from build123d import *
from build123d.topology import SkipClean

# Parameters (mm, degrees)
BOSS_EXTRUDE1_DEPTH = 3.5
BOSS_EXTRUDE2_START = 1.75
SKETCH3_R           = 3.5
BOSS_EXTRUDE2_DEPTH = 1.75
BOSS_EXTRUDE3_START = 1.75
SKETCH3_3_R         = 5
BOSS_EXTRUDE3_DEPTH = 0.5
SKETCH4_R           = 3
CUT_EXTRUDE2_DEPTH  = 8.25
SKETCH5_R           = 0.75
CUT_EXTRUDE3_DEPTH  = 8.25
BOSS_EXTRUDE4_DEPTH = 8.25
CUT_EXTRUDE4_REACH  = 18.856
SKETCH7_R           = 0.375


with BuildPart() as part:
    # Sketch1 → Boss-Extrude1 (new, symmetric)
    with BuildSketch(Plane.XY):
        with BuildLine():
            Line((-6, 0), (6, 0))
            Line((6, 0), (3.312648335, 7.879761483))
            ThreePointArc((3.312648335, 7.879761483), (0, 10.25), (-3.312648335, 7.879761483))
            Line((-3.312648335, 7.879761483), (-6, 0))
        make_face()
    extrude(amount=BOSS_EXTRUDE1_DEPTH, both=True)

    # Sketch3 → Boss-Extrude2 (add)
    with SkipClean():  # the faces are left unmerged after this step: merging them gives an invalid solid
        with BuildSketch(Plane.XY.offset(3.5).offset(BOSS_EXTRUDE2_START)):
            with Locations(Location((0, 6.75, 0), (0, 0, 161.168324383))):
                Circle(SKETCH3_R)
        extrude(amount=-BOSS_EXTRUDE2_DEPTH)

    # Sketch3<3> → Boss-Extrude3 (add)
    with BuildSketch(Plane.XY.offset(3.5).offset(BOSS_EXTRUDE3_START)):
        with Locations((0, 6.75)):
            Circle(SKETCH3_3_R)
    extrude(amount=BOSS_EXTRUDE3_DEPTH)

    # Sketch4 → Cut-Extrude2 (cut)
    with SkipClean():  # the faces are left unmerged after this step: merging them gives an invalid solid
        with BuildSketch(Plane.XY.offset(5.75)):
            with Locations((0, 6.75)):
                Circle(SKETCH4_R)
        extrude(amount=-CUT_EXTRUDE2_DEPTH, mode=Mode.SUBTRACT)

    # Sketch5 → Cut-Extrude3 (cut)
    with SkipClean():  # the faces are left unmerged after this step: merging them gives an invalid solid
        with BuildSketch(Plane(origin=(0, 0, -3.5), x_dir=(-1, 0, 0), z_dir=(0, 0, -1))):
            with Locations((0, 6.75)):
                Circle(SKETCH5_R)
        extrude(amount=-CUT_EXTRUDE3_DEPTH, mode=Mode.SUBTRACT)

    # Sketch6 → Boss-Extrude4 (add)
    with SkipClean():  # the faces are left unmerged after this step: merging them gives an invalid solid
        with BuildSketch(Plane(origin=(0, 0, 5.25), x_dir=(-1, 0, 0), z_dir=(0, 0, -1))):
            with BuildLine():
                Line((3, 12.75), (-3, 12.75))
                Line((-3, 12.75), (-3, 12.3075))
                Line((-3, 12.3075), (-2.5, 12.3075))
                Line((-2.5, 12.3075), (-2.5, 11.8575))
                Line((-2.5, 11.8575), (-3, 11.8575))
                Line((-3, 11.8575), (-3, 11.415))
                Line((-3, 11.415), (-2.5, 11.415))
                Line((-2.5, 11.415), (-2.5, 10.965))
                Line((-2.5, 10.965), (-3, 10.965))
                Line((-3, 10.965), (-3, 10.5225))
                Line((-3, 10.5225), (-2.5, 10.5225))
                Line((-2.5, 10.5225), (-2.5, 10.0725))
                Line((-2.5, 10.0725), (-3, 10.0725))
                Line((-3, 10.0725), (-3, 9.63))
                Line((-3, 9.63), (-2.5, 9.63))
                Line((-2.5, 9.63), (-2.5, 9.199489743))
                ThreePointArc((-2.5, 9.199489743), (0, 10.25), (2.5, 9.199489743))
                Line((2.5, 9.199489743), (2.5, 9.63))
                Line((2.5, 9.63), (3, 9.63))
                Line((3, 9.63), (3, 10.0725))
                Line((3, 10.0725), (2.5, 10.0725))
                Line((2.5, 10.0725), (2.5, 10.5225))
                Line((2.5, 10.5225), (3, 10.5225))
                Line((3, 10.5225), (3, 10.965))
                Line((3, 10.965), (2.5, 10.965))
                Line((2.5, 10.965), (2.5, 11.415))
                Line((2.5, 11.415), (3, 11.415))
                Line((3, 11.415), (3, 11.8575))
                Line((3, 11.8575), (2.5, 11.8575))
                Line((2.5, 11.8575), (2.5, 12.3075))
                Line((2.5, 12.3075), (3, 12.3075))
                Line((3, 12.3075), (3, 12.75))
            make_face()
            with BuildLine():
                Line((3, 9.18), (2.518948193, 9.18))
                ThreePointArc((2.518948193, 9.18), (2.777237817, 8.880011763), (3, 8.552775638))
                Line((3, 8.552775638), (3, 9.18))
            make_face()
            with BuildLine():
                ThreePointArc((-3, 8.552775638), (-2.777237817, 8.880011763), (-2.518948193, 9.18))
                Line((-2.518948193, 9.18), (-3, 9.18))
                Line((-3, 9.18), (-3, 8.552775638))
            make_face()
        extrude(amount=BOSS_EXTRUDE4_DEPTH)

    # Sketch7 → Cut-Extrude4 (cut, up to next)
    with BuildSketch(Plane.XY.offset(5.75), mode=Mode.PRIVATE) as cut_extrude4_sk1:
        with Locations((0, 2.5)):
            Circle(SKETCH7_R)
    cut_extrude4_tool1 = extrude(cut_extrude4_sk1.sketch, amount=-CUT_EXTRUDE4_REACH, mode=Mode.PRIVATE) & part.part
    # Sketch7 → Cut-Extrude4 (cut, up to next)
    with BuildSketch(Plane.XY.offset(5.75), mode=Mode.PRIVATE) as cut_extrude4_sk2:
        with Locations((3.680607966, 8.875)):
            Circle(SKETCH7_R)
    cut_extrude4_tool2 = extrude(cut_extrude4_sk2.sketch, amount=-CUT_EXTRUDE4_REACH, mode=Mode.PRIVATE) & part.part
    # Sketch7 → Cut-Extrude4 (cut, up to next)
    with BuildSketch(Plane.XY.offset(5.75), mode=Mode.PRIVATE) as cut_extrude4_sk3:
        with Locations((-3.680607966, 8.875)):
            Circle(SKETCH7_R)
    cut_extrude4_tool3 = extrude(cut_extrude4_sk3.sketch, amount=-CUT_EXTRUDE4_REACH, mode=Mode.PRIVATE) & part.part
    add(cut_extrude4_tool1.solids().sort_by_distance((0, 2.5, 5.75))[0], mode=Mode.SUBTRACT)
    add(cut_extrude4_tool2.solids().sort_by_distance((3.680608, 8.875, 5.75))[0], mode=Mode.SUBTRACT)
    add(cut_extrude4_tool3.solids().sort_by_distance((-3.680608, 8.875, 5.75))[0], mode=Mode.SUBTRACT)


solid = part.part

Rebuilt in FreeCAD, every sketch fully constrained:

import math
import FreeCAD as App
import Part
import Sketcher

doc = App.newDocument("Part")
body = doc.addObject("PartDesign::Body", "Body")

# Sketch on XY plane
sketch1 = body.newObject("Sketcher::SketchObject", "Sketch")
sketch1.AttachmentSupport = (doc.getObject("XY_Plane"), [""])
sketch1.MapMode = "FlatFace"
sketch1.addGeometry([
    Part.LineSegment(App.Vector(-6, 0, 0), App.Vector(6, 0, 0)),
    Part.LineSegment(App.Vector(6, 0, 0), App.Vector(3.3, 7.9, 0)),
    Part.ArcOfCircle(Part.Circle(App.Vector(0, 6.8, 0), App.Vector(0, 0, 1), 3.5), math.radians(19), math.radians(161)),
    Part.LineSegment(App.Vector(-3.3, 7.9, 0), App.Vector(-6, 0, 0)),
], False)
sketch1.addConstraint([
    Sketcher.Constraint("Coincident", 0, 2, 1, 1),
    Sketcher.Constraint("Tangent", 1, 2, 2, 1),
    Sketcher.Constraint("Tangent", 2, 2, 3, 1),
    Sketcher.Constraint("Coincident", 3, 2, 0, 1),
    Sketcher.Constraint("Horizontal", 0),
    Sketcher.Constraint("Symmetric", 0, 2, 3, 2, -1, 1),
    Sketcher.Constraint("PointOnObject", 2, 3, -2),
    Sketcher.Constraint("Radius", 2, 3.5),
    Sketcher.Constraint("DistanceX", 0, 1, 0, 2, 12.0),
    Sketcher.Constraint("DistanceY", -1, 1, 2, 3, 6.75),
])
pad1 = body.newObject("PartDesign::Pad", "Pad")
pad1.Profile = sketch1
pad1.Length = 7
pad1.Midplane = True

# Sketch on XY plane
sketch2 = body.newObject("Sketcher::SketchObject", "Sketch001")
sketch2.AttachmentSupport = (doc.getObject("XY_Plane"), [""])
sketch2.MapMode = "FlatFace"
sketch2.AttachmentOffset = App.Placement(App.Vector(0, 0, 5.25), App.Rotation())
sketch2.addGeometry(Part.Circle(App.Vector(0, 6.8, 0), App.Vector(0, 0, 1), 3.5), False)
sketch2.addConstraint([
    Sketcher.Constraint("PointOnObject", 0, 3, -2),
    Sketcher.Constraint("Diameter", 0, 7.0),
    Sketcher.Constraint("DistanceY", -1, 1, 0, 3, 6.75),
])
pad2 = body.newObject("PartDesign::Pad", "Pad001")
pad2.Profile = sketch2
pad2.Length = 1.75
pad2.Reversed = True

# Sketch on XY plane
sketch3 = body.newObject("Sketcher::SketchObject", "Sketch002")
sketch3.AttachmentSupport = (doc.getObject("XY_Plane"), [""])
sketch3.MapMode = "FlatFace"
sketch3.AttachmentOffset = App.Placement(App.Vector(0, 0, 5.25), App.Rotation())
sketch3.addGeometry(Part.Circle(App.Vector(0, 7, 0), App.Vector(0, 0, 1), 5), False)
sketch3.addConstraint([
    Sketcher.Constraint("PointOnObject", 0, 3, -2),
    Sketcher.Constraint("Diameter", 0, 10.0),
    Sketcher.Constraint("DistanceY", -1, 1, 0, 3, 6.75),
])
pad3 = body.newObject("PartDesign::Pad", "Pad002")
pad3.Profile = sketch3
pad3.Length = 0.5

# Sketch on XY plane
sketch4 = body.newObject("Sketcher::SketchObject", "Sketch003")
sketch4.AttachmentSupport = (doc.getObject("XY_Plane"), [""])
sketch4.MapMode = "FlatFace"
sketch4.AttachmentOffset = App.Placement(App.Vector(0, 0, 5.75), App.Rotation())
sketch4.addGeometry(Part.Circle(App.Vector(0, 6.8, 0), App.Vector(0, 0, 1), 3), False)
sketch4.addConstraint([
    Sketcher.Constraint("PointOnObject", 0, 3, -2),
    Sketcher.Constraint("Diameter", 0, 6.0),
    Sketcher.Constraint("DistanceY", -1, 1, 0, 3, 6.75),
])
pocket1 = body.newObject("PartDesign::Pocket", "Pocket")
pocket1.Profile = sketch4
pocket1.Length = 8.25

# Sketch on XY plane
sketch5 = body.newObject("Sketcher::SketchObject", "Sketch004")
sketch5.AttachmentSupport = (doc.getObject("XY_Plane"), [""])
sketch5.MapMode = "FlatFace"
sketch5.AttachmentOffset = App.Placement(App.Vector(0, 0, -3.5), App.Rotation())
sketch5.addGeometry(Part.Circle(App.Vector(0, 6.8, 0), App.Vector(0, 0, 1), 0.8), False)
sketch5.addConstraint([
    Sketcher.Constraint("PointOnObject", 0, 3, -2),
    Sketcher.Constraint("Diameter", 0, 1.5),
    Sketcher.Constraint("DistanceY", -1, 1, 0, 3, 6.75),
])
pocket2 = body.newObject("PartDesign::Pocket", "Pocket001")
pocket2.Profile = sketch5
pocket2.Length = 8.25
pocket2.Reversed = True

# Sketch on XY plane
sketch6 = body.newObject("Sketcher::SketchObject", "Sketch005")
sketch6.AttachmentSupport = (doc.getObject("XY_Plane"), [""])
sketch6.MapMode = "FlatFace"
sketch6.AttachmentOffset = App.Placement(App.Vector(0, 0, 5.25), App.Rotation())
sketch6.addGeometry([
    Part.LineSegment(App.Vector(-3, 12.75, 0), App.Vector(3, 12.75, 0)),  # 0
    Part.LineSegment(App.Vector(3, 12.75, 0), App.Vector(3, 12.31, 0)),  # 1
    Part.LineSegment(App.Vector(3, 12.31, 0), App.Vector(2.5, 12.31, 0)),  # 2
    Part.LineSegment(App.Vector(2.5, 12.31, 0), App.Vector(2.5, 11.86, 0)),  # 3
    Part.LineSegment(App.Vector(2.5, 11.86, 0), App.Vector(3, 11.86, 0)),  # 4
    Part.LineSegment(App.Vector(3, 11.86, 0), App.Vector(3, 11.41, 0)),  # 5
    Part.LineSegment(App.Vector(3, 11.41, 0), App.Vector(2.5, 11.41, 0)),  # 6
    Part.LineSegment(App.Vector(2.5, 11.41, 0), App.Vector(2.5, 10.96, 0)),  # 7
    Part.LineSegment(App.Vector(2.5, 10.96, 0), App.Vector(3, 10.96, 0)),  # 8
    Part.LineSegment(App.Vector(3, 10.96, 0), App.Vector(3, 10.52, 0)),  # 9
    Part.LineSegment(App.Vector(3, 10.52, 0), App.Vector(2.5, 10.52, 0)),  # 10
    Part.LineSegment(App.Vector(2.5, 10.52, 0), App.Vector(2.5, 10.07, 0)),  # 11
    Part.LineSegment(App.Vector(2.5, 10.07, 0), App.Vector(3, 10.07, 0)),  # 12
    Part.LineSegment(App.Vector(3, 10.07, 0), App.Vector(3, 9.63, 0)),  # 13
    Part.LineSegment(App.Vector(3, 9.63, 0), App.Vector(2.5, 9.63, 0)),  # 14
    Part.LineSegment(App.Vector(2.5, 9.63, 0), App.Vector(2.5, 9.2, 0)),  # 15
    Part.ArcOfCircle(Part.Circle(App.Vector(0, 6.75, 0), App.Vector(0, 0, 1), 3.5), math.radians(44), math.radians(136)),  # 16
    Part.LineSegment(App.Vector(-2.5, 9.2, 0), App.Vector(-2.5, 9.63, 0)),  # 17
    Part.LineSegment(App.Vector(-2.5, 9.63, 0), App.Vector(-3, 9.63, 0)),  # 18
    Part.LineSegment(App.Vector(-3, 9.63, 0), App.Vector(-3, 10.07, 0)),  # 19
    Part.LineSegment(App.Vector(-3, 10.07, 0), App.Vector(-2.5, 10.07, 0)),  # 20
    Part.LineSegment(App.Vector(-2.5, 10.07, 0), App.Vector(-2.5, 10.52, 0)),  # 21
    Part.LineSegment(App.Vector(-2.5, 10.52, 0), App.Vector(-3, 10.52, 0)),  # 22
    Part.LineSegment(App.Vector(-3, 10.52, 0), App.Vector(-3, 10.96, 0)),  # 23
    Part.LineSegment(App.Vector(-3, 10.96, 0), App.Vector(-2.5, 10.96, 0)),  # 24
    Part.LineSegment(App.Vector(-2.5, 10.96, 0), App.Vector(-2.5, 11.41, 0)),  # 25
    Part.LineSegment(App.Vector(-2.5, 11.41, 0), App.Vector(-3, 11.41, 0)),  # 26
    Part.LineSegment(App.Vector(-3, 11.41, 0), App.Vector(-3, 11.86, 0)),  # 27
    Part.LineSegment(App.Vector(-3, 11.86, 0), App.Vector(-2.5, 11.86, 0)),  # 28
    Part.LineSegment(App.Vector(-2.5, 11.86, 0), App.Vector(-2.5, 12.31, 0)),  # 29
    Part.LineSegment(App.Vector(-2.5, 12.31, 0), App.Vector(-3, 12.31, 0)),  # 30
    Part.LineSegment(App.Vector(-3, 12.31, 0), App.Vector(-3, 12.75, 0)),  # 31
    Part.LineSegment(App.Vector(-3, 9.18, 0), App.Vector(-2.52, 9.18, 0)),  # 32
    Part.ArcOfCircle(Part.Circle(App.Vector(0, 6.75, 0), App.Vector(0, 0, 1), 3.5), math.radians(136.03), math.radians(149)),  # 33
    Part.LineSegment(App.Vector(-3, 8.55, 0), App.Vector(-3, 9.18, 0)),  # 34
    Part.ArcOfCircle(Part.Circle(App.Vector(0, 6.75, 0), App.Vector(0, 0, 1), 3.5), math.radians(31), math.radians(43.97)),  # 35
    Part.LineSegment(App.Vector(2.52, 9.18, 0), App.Vector(3, 9.18, 0)),  # 36
    Part.LineSegment(App.Vector(3, 9.18, 0), App.Vector(3, 8.55, 0)),  # 37
], False)
sketch6.addConstraint([
    Sketcher.Constraint("Coincident", 0, 2, 1, 1),
    Sketcher.Constraint("Coincident", 1, 2, 2, 1),
    Sketcher.Constraint("Coincident", 2, 2, 3, 1),
    Sketcher.Constraint("Coincident", 3, 2, 4, 1),
    Sketcher.Constraint("Coincident", 4, 2, 5, 1),
    Sketcher.Constraint("Coincident", 5, 2, 6, 1),
    Sketcher.Constraint("Coincident", 6, 2, 7, 1),
    Sketcher.Constraint("Coincident", 7, 2, 8, 1),
    Sketcher.Constraint("Coincident", 8, 2, 9, 1),
    Sketcher.Constraint("Coincident", 9, 2, 10, 1),
    Sketcher.Constraint("Coincident", 10, 2, 11, 1),
    Sketcher.Constraint("Coincident", 11, 2, 12, 1),
    Sketcher.Constraint("Coincident", 12, 2, 13, 1),
    Sketcher.Constraint("Coincident", 13, 2, 14, 1),
    Sketcher.Constraint("Coincident", 14, 2, 15, 1),
    Sketcher.Constraint("Coincident", 15, 2, 16, 1),
    Sketcher.Constraint("Coincident", 16, 2, 17, 1),
    Sketcher.Constraint("Coincident", 17, 2, 18, 1),
    Sketcher.Constraint("Coincident", 18, 2, 19, 1),
    Sketcher.Constraint("Coincident", 19, 2, 20, 1),
    Sketcher.Constraint("Coincident", 20, 2, 21, 1),
    Sketcher.Constraint("Coincident", 21, 2, 22, 1),
    Sketcher.Constraint("Coincident", 22, 2, 23, 1),
    Sketcher.Constraint("Coincident", 23, 2, 24, 1),
    Sketcher.Constraint("Coincident", 24, 2, 25, 1),
    Sketcher.Constraint("Coincident", 25, 2, 26, 1),
    Sketcher.Constraint("Coincident", 26, 2, 27, 1),
    Sketcher.Constraint("Coincident", 27, 2, 28, 1),
    Sketcher.Constraint("Coincident", 28, 2, 29, 1),
    Sketcher.Constraint("Coincident", 29, 2, 30, 1),
    Sketcher.Constraint("Coincident", 30, 2, 31, 1),
    Sketcher.Constraint("Coincident", 31, 2, 0, 1),
    Sketcher.Constraint("Coincident", 32, 2, 33, 1),
    Sketcher.Constraint("Coincident", 33, 2, 34, 1),
    Sketcher.Constraint("Coincident", 34, 2, 32, 1),
    Sketcher.Constraint("Coincident", 35, 2, 36, 1),
    Sketcher.Constraint("Coincident", 36, 2, 37, 1),
    Sketcher.Constraint("Coincident", 37, 2, 35, 1),
    Sketcher.Constraint("Horizontal", 0),
    Sketcher.Constraint("Vertical", 1),
    Sketcher.Constraint("Horizontal", 2),
    Sketcher.Constraint("Vertical", 3),
    Sketcher.Constraint("Horizontal", 4),
    Sketcher.Constraint("Vertical", 5),
    Sketcher.Constraint("Horizontal", 6),
    Sketcher.Constraint("Vertical", 7),
    Sketcher.Constraint("Horizontal", 8),
    Sketcher.Constraint("Vertical", 9),
    Sketcher.Constraint("Horizontal", 10),
    Sketcher.Constraint("Vertical", 11),
    Sketcher.Constraint("Horizontal", 12),
    Sketcher.Constraint("Vertical", 13),
    Sketcher.Constraint("Horizontal", 14),
    Sketcher.Constraint("Vertical", 15),
    Sketcher.Constraint("Vertical", 17),
    Sketcher.Constraint("Horizontal", 18),
    Sketcher.Constraint("Vertical", 19),
    Sketcher.Constraint("Horizontal", 20),
    Sketcher.Constraint("Vertical", 21),
    Sketcher.Constraint("Horizontal", 22),
    Sketcher.Constraint("Vertical", 23),
    Sketcher.Constraint("Horizontal", 24),
    Sketcher.Constraint("Vertical", 25),
    Sketcher.Constraint("Horizontal", 26),
    Sketcher.Constraint("Vertical", 27),
    Sketcher.Constraint("Horizontal", 28),
    Sketcher.Constraint("Vertical", 29),
    Sketcher.Constraint("Horizontal", 30),
    Sketcher.Constraint("Vertical", 31),
    Sketcher.Constraint("Horizontal", 32),
    Sketcher.Constraint("Vertical", 34),
    Sketcher.Constraint("Horizontal", 36),
    Sketcher.Constraint("Vertical", 37),
    Sketcher.Constraint("Coincident", 33, 3, 16, 3),
    Sketcher.Constraint("Coincident", 35, 3, 16, 3),
    Sketcher.Constraint("Equal", 16, 33),
    Sketcher.Constraint("Equal", 33, 35),
    Sketcher.Constraint("Symmetric", 15, 2, 16, 2, -2),
    Sketcher.Constraint("Symmetric", 13, 2, 18, 2, -2),
    Sketcher.Constraint("Symmetric", 11, 2, 20, 2, -2),
    Sketcher.Constraint("Symmetric", 9, 2, 22, 2, -2),
    Sketcher.Constraint("Symmetric", 7, 2, 24, 2, -2),
    Sketcher.Constraint("Symmetric", 5, 2, 26, 2, -2),
    Sketcher.Constraint("Symmetric", 3, 2, 28, 2, -2),
    Sketcher.Constraint("Symmetric", 1, 2, 30, 2, -2),
    Sketcher.Constraint("Symmetric", 34, 2, 36, 2, -2),
    Sketcher.Constraint("Vertical", 1, 2, 4, 2),
    Sketcher.Constraint("Vertical", 3, 2, 6, 2),
    Sketcher.Constraint("Vertical", 5, 2, 8, 2),
    Sketcher.Constraint("Vertical", 7, 2, 10, 2),
    Sketcher.Constraint("Vertical", 9, 2, 12, 2),
    Sketcher.Constraint("Vertical", 11, 2, 14, 2),
    Sketcher.Constraint("Vertical", 31, 2, 33, 2),
    Sketcher.Constraint("Equal", 1, 5),
    Sketcher.Constraint("Equal", 3, 7),
    Sketcher.Constraint("Equal", 5, 9),
    Sketcher.Constraint("Equal", 7, 11),
    Sketcher.Constraint("Equal", 9, 13),
    Sketcher.Constraint("Radius", 16, 3.5),
    Sketcher.Constraint("DistanceX", 0, 1, 0, 2, 6.0),
    Sketcher.Constraint("DistanceX", 2, 2, 2, 1, 0.5),
    Sketcher.Constraint("DistanceY", 35, 3, 0, 2, 6.0),
    Sketcher.Constraint("DistanceY", 3, 2, 3, 1, 0.45),
    Sketcher.Constraint("DistanceY", -1, 1, 16, 3, 6.75),
    Sketcher.Constraint("DistanceY", -1, 1, 13, 2, 9.63),
    Sketcher.Constraint("DistanceY", -1, 1, 32, 2, 9.18),
])
pad4 = body.newObject("PartDesign::Pad", "Pad003")
pad4.Profile = sketch6
pad4.Length = 8.25
pad4.Reversed = True

# Sketch on XY plane
sketch7 = body.newObject("Sketcher::SketchObject", "Sketch006")
sketch7.AttachmentSupport = (doc.getObject("XY_Plane"), [""])
sketch7.MapMode = "FlatFace"
sketch7.AttachmentOffset = App.Placement(App.Vector(0, 0, 5.75), App.Rotation())
sketch7.addGeometry(Part.Circle(App.Vector(0, 2.5, 0), App.Vector(0, 0, 1), 0.38), False)
sketch7.addConstraint([
    Sketcher.Constraint("PointOnObject", 0, 3, -2),
    Sketcher.Constraint("Diameter", 0, 0.75),
    Sketcher.Constraint("DistanceY", -1, 1, 0, 3, 2.5),
])
pocket3 = body.newObject("PartDesign::Pocket", "Pocket002")
pocket3.Profile = sketch7
pocket3.Type = "UpToFirst"

# Sketch on XY plane
sketch8 = body.newObject("Sketcher::SketchObject", "Sketch007")
sketch8.AttachmentSupport = (doc.getObject("XY_Plane"), [""])
sketch8.MapMode = "FlatFace"
sketch8.AttachmentOffset = App.Placement(App.Vector(0, 0, 5.75), App.Rotation())
sketch8.addGeometry(Part.Circle(App.Vector(3.68, 8.88, 0), App.Vector(0, 0, 1), 0.38), False)
sketch8.addConstraint([
    Sketcher.Constraint("Diameter", 0, 0.75),
    Sketcher.Constraint("DistanceY", -1, 1, 0, 3, 8.875),
    Sketcher.Constraint("DistanceX", -1, 1, 0, 3, 3.680608),
])
pocket4 = body.newObject("PartDesign::Pocket", "Pocket003")
pocket4.Profile = sketch8
pocket4.Type = "UpToFirst"

# Sketch on XY plane
sketch9 = body.newObject("Sketcher::SketchObject", "Sketch008")
sketch9.AttachmentSupport = (doc.getObject("XY_Plane"), [""])
sketch9.MapMode = "FlatFace"
sketch9.AttachmentOffset = App.Placement(App.Vector(0, 0, 5.75), App.Rotation())
sketch9.addGeometry(Part.Circle(App.Vector(-3.68, 8.88, 0), App.Vector(0, 0, 1), 0.38), False)
sketch9.addConstraint([
    Sketcher.Constraint("Diameter", 0, 0.75),
    Sketcher.Constraint("DistanceY", -1, 1, 0, 3, 8.875),
    Sketcher.Constraint("DistanceX", 0, 3, -1, 1, 3.680608),
])
pocket5 = body.newObject("PartDesign::Pocket", "Pocket004")
pocket5.Profile = sketch9
pocket5.Type = "UpToFirst"

doc.recompute()
